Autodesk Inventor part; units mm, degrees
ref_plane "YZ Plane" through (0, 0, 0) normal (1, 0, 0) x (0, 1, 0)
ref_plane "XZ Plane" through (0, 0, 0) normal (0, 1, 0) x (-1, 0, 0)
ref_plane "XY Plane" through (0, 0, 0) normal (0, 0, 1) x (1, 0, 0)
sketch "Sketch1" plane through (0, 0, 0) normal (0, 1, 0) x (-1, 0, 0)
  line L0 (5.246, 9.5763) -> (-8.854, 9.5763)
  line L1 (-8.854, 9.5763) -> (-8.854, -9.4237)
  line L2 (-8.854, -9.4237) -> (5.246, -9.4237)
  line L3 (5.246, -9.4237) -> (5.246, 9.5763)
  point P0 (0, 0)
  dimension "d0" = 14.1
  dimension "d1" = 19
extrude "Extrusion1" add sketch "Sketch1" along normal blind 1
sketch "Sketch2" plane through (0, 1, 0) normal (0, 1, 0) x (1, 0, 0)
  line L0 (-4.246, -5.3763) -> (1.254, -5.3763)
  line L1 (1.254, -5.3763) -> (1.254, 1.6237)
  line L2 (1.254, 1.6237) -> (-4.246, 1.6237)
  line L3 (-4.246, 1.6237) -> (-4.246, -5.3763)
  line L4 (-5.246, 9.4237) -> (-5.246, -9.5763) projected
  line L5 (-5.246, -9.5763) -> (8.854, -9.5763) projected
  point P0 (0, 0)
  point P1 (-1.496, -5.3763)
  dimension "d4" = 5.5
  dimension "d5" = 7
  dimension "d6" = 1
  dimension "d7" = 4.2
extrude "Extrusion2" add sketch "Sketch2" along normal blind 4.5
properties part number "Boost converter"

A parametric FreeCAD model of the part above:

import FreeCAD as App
import Part
import Sketcher
from FreeCAD import Vector
Q = App.Units.Quantity


def add_polygon(sketch, points):
    """Adds a closed chain of lines whose ends are joined by coincident constraints."""
    first, n = sketch.GeometryCount, len(points)
    for a, b in zip(points, points[1:] + points[:1]):
        sketch.addGeometry(Part.LineSegment(App.Vector(*a, 0), App.Vector(*b, 0)), False)
    for i in range(n):
        sketch.addConstraint(Sketcher.Constraint("Coincident", first + i, 2, first + (i + 1) % n, 1))

doc = App.newDocument("Part")
body = doc.addObject("PartDesign::Body", "Body")

# Sketch on XZ plane
sketch1 = body.newObject("Sketcher::SketchObject", "Sketch")
sketch1.AttachmentSupport = (doc.getObject("XZ_Plane"), [""])
sketch1.MapMode = "FlatFace"
add_polygon(sketch1, [(-5, -9), (-5, 10), (9, 10), (9, -9)])  # lines 0-3
sketch1.addConstraint(Sketcher.Constraint("Vertical", 0))
sketch1.addConstraint(Sketcher.Constraint("Horizontal", 1))
sketch1.addConstraint(Sketcher.Constraint("Vertical", 2))
sketch1.addConstraint(Sketcher.Constraint("Horizontal", 3))
sketch1.addConstraint(Sketcher.Constraint("DistanceY", 0, 1, 0, 2, Q("19 mm")))
sketch1.addConstraint(Sketcher.Constraint("DistanceX", 1, 1, 1, 2, Q("14.1 mm")))
sketch1.addConstraint(Sketcher.Constraint("DistanceX", 0, 2, -1, 1, Q("5.246 mm")))
sketch1.addConstraint(Sketcher.Constraint("DistanceY", -1, 1, 0, 2, Q("9.5763 mm")))
pad1 = body.newObject("PartDesign::Pad", "Pad")
pad1.Profile = sketch1
pad1.Length = 1
pad1.Reversed = True

# Sketch on XZ plane
sketch2 = body.newObject("Sketcher::SketchObject", "Sketch001")
sketch2.AttachmentSupport = (doc.getObject("XZ_Plane"), [""])
sketch2.MapMode = "FlatFace"
sketch2.AttachmentOffset = App.Placement(Vector(0, 0, -1), App.Rotation())
add_polygon(sketch2, [(-4, -2), (-4, 5), (1, 5), (1, -2)])  # lines 0-3
sketch2.addConstraint(Sketcher.Constraint("Vertical", 0))
sketch2.addConstraint(Sketcher.Constraint("Horizontal", 1))
sketch2.addConstraint(Sketcher.Constraint("Vertical", 2))
sketch2.addConstraint(Sketcher.Constraint("Horizontal", 3))
sketch2.addConstraint(Sketcher.Constraint("DistanceY", 0, 1, 0, 2, Q("7 mm")))
sketch2.addConstraint(Sketcher.Constraint("DistanceX", 1, 1, 1, 2, Q("5.5 mm")))
sketch2.addConstraint(Sketcher.Constraint("DistanceX", 0, 2, -1, 1, Q("4.246 mm")))
sketch2.addConstraint(Sketcher.Constraint("DistanceY", -1, 1, 0, 2, Q("5.3763 mm")))
pad2 = body.newObject("PartDesign::Pad", "Pad001")
pad2.Profile = sketch2
pad2.Length = 4.5
pad2.Reversed = True

doc.recompute()
